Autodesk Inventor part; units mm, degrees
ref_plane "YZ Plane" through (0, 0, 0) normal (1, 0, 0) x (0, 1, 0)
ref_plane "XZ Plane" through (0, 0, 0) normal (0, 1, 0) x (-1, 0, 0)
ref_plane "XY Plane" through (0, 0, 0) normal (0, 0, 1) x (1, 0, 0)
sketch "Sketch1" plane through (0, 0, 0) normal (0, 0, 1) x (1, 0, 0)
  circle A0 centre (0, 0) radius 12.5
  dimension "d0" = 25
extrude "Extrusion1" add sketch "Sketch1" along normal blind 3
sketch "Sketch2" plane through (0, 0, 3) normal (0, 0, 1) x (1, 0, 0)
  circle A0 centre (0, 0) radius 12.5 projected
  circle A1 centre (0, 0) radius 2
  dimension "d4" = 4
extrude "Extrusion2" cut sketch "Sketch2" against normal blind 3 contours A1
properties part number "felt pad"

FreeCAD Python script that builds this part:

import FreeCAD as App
import Part
import Sketcher

V = App.Vector
Q = App.Units.Quantity

doc = App.newDocument("Part")
body = doc.addObject("PartDesign::Body", "Body")

# Sketch on XY plane
sketch1 = body.newObject("Sketcher::SketchObject", "Sketch")
sketch1.AttachmentSupport = (doc.getObject("XY_Plane"), [""])
sketch1.MapMode = "FlatFace"
sketch1.addGeometry(Part.Circle(V(0, 0, 0), V(0, 0, 1), 12), False)
sketch1.addConstraint([
    Sketcher.Constraint("Coincident", 0, 3, -1, 1),
    Sketcher.Constraint("Diameter", 0, Q("25 mm")),
])
pad1 = body.newObject("PartDesign::Pad", "Pad")
pad1.Profile = sketch1
pad1.Length = 3

# Sketch on XY plane
sketch2 = body.newObject("Sketcher::SketchObject", "Sketch001")
sketch2.AttachmentSupport = (doc.getObject("XY_Plane"), [""])
sketch2.MapMode = "FlatFace"
sketch2.AttachmentOffset = App.Placement(V(0, 0, 3), App.Rotation())
sketch2.addGeometry(Part.Circle(V(0, 0, 0), V(0, 0, 1), 2), False)
sketch2.addConstraint([
    Sketcher.Constraint("Coincident", 0, 3, -1, 1),
    Sketcher.Constraint("Diameter", 0, Q("4 mm")),
])
pocket1 = body.newObject("PartDesign::Pocket", "Pocket")
pocket1.Profile = sketch2
pocket1.Length = 3

doc.recompute()
